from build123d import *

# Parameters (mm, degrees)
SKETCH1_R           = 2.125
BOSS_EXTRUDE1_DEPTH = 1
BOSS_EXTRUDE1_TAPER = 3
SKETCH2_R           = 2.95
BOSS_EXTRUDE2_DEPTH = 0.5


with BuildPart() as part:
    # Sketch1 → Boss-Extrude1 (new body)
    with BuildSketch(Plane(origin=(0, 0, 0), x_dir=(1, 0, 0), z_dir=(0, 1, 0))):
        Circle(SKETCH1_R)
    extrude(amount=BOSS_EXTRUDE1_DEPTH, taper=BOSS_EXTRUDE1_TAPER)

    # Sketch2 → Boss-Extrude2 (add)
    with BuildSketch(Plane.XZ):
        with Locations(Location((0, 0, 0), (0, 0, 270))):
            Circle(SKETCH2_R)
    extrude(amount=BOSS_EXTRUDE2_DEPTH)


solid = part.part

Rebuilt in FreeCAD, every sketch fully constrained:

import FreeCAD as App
import Part
import Sketcher

V = App.Vector

doc = App.newDocument("Part")
body = doc.addObject("PartDesign::Body", "Body")

sketch1 = body.newObject("Sketcher::SketchObject", "Sketch")
sketch1.AttachmentSupport = (doc.getObject("XZ_Plane"), [""])
sketch1.MapMode = "FlatFace"
sketch1.addGeometry(Part.Circle(V(0, 0, 0), V(0, 0, 1), 2.1), False)
sketch1.addConstraint(Sketcher.Constraint("Coincident", 0, 3, -1, 1))
sketch1.addConstraint(Sketcher.Constraint("Diameter", 0, 4.25))
pad1 = body.newObject("PartDesign::Pad", "Pad")
pad1.Profile = sketch1
pad1.Length = 1
pad1.Reversed = True
pad1.TaperAngle = -3

sketch2 = body.newObject("Sketcher::SketchObject", "Sketch001")
sketch2.AttachmentSupport = (doc.getObject("XZ_Plane"), [""])
sketch2.MapMode = "FlatFace"
sketch2.addGeometry(Part.Circle(V(0, 0, 0), V(0, 0, 1), 3), False)
sketch2.addConstraint(Sketcher.Constraint("Coincident", 0, 3, -1, 1))
sketch2.addConstraint(Sketcher.Constraint("Diameter", 0, 5.9))
pad2 = body.newObject("PartDesign::Pad", "Pad001")
pad2.Profile = sketch2
pad2.Length = 0.5

doc.recompute()
